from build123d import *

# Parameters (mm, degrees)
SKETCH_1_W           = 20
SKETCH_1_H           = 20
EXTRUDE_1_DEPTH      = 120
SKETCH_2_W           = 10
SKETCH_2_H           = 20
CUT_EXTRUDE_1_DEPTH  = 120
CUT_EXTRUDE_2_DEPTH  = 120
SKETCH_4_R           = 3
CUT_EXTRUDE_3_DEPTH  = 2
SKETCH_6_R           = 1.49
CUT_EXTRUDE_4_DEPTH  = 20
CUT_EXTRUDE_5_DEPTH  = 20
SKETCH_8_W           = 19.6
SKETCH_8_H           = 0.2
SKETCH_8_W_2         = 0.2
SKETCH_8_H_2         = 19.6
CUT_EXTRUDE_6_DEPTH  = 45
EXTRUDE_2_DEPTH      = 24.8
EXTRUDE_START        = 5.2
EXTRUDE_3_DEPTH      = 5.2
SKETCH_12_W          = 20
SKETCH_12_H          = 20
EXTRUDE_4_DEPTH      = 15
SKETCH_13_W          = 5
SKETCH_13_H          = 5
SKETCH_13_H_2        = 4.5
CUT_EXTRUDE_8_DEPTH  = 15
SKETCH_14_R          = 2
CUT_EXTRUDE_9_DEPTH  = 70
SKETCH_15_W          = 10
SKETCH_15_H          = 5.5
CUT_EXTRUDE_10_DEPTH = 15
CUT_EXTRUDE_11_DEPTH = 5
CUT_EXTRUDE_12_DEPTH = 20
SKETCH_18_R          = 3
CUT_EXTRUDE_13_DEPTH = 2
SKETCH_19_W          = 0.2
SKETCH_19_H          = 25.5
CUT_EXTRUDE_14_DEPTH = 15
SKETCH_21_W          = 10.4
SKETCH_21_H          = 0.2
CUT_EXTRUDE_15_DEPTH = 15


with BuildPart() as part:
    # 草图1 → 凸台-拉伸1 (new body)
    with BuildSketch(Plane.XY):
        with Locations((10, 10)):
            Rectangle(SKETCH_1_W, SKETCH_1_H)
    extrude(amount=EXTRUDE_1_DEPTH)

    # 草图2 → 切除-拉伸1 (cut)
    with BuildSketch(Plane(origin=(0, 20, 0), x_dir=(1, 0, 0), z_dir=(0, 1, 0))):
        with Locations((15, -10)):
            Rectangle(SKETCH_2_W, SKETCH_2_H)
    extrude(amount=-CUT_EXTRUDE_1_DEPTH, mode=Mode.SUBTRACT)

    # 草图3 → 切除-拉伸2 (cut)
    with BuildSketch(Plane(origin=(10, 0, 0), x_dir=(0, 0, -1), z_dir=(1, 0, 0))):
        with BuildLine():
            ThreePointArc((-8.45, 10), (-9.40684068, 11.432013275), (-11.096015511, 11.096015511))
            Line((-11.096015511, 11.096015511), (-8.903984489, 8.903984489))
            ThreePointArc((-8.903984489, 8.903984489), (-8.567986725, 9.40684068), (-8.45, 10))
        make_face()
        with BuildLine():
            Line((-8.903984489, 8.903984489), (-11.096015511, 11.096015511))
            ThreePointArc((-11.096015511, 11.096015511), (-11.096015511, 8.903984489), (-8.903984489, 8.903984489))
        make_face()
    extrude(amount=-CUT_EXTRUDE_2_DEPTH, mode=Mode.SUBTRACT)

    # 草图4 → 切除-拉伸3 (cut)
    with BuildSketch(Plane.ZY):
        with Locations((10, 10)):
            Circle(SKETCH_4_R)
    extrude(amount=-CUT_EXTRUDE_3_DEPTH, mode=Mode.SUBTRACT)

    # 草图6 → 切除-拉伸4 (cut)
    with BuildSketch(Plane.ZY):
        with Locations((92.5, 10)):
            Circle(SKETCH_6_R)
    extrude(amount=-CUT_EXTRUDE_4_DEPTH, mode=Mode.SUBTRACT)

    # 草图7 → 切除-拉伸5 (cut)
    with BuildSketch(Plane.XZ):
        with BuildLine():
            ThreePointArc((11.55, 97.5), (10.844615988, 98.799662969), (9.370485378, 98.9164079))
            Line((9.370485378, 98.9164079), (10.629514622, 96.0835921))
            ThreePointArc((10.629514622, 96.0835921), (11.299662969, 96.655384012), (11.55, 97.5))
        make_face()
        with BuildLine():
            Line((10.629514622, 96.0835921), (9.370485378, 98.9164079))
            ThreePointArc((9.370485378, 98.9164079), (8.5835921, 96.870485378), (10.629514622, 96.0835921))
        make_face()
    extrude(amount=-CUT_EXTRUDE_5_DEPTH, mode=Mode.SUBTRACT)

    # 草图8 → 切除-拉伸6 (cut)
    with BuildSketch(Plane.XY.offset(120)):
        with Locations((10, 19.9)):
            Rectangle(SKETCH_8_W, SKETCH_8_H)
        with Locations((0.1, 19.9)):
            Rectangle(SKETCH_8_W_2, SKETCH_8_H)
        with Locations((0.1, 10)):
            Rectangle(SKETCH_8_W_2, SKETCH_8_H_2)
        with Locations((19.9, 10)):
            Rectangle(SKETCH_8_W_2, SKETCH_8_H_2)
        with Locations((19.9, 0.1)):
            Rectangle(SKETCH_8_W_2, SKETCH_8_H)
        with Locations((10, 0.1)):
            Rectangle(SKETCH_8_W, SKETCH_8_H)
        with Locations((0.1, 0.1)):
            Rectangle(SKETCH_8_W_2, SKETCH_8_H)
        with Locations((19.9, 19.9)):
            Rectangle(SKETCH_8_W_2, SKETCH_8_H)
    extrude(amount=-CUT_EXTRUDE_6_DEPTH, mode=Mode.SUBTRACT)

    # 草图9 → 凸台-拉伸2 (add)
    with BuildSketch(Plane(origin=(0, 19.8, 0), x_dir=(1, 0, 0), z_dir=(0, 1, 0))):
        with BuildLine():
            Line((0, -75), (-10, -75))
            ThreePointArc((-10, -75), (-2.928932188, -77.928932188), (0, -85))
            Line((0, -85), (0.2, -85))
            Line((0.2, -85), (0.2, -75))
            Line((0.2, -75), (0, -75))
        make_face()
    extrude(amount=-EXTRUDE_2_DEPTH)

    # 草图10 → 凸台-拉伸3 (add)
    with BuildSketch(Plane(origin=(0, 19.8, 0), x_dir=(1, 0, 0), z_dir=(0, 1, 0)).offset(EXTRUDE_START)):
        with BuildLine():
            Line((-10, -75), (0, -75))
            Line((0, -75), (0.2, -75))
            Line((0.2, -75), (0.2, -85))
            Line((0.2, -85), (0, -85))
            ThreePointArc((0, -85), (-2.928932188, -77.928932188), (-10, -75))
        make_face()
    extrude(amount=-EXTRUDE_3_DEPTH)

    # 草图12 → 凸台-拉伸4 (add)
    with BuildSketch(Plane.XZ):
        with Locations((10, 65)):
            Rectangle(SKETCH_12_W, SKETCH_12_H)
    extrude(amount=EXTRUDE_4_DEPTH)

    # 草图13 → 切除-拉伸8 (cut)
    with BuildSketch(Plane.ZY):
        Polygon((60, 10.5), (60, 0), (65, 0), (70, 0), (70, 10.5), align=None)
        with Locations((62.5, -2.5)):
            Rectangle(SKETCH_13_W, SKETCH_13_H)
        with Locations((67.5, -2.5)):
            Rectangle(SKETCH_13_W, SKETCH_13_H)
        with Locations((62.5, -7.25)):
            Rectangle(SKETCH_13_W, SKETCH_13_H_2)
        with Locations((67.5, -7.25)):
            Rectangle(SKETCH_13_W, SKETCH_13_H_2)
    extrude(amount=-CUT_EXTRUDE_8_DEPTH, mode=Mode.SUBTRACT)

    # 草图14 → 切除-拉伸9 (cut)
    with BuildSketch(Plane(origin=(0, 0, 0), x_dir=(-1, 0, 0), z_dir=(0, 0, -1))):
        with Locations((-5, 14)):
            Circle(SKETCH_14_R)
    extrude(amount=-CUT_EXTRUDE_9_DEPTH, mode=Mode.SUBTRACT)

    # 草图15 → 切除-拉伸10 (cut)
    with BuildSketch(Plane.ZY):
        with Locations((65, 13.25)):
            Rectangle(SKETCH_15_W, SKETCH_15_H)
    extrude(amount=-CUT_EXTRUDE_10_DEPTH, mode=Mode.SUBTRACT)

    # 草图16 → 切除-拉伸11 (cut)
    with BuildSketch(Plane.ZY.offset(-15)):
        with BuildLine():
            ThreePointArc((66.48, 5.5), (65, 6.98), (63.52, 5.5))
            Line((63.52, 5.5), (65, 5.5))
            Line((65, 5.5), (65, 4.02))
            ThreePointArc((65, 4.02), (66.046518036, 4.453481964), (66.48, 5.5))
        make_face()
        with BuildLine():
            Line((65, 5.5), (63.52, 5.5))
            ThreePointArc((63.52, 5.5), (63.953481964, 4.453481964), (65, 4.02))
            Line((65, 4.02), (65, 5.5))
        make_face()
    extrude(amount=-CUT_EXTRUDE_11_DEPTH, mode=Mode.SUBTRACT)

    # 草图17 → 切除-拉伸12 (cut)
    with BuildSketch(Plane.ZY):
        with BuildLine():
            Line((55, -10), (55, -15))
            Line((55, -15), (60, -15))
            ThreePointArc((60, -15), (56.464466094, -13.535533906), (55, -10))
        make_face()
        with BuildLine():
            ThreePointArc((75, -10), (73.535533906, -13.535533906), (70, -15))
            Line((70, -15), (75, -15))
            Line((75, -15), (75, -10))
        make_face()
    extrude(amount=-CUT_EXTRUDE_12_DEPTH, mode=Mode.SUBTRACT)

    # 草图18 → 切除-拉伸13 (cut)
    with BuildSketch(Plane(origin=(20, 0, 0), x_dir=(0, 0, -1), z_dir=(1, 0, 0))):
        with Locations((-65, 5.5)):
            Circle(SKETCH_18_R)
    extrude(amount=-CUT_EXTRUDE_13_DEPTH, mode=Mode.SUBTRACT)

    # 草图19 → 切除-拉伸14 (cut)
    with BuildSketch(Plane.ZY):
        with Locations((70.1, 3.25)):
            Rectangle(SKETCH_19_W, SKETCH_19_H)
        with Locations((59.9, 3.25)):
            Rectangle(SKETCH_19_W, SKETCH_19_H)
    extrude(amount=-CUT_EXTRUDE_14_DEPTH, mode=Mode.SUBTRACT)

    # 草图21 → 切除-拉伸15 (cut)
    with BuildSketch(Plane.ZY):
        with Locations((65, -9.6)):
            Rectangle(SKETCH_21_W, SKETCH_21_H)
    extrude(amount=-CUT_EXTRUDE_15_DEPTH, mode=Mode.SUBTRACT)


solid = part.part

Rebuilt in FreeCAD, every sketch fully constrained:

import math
import FreeCAD as App
import Part
import Sketcher
Q = App.Units.Quantity


def add_polygon(sketch, points):
    """Adds a closed chain of lines whose ends are joined by coincident constraints."""
    first, n = sketch.GeometryCount, len(points)
    for a, b in zip(points, points[1:] + points[:1]):
        sketch.addGeometry(Part.LineSegment(App.Vector(*a, 0), App.Vector(*b, 0)), False)
    for i in range(n):
        sketch.addConstraint(Sketcher.Constraint("Coincident", first + i, 2, first + (i + 1) % n, 1))

doc = App.newDocument("Part")
body = doc.addObject("PartDesign::Body", "Body")

sketch1 = body.newObject("Sketcher::SketchObject", "Sketch")
sketch1.AttachmentSupport = (doc.getObject("XY_Plane"), [""])
sketch1.MapMode = "FlatFace"
add_polygon(sketch1, [(0, 20), (0, 0), (20, 0), (20, 20)])
sketch1.addConstraint(Sketcher.Constraint("Vertical", 0))
sketch1.addConstraint(Sketcher.Constraint("Horizontal", 1))
sketch1.addConstraint(Sketcher.Constraint("Vertical", 2))
sketch1.addConstraint(Sketcher.Constraint("Horizontal", 3))
sketch1.addConstraint(Sketcher.Constraint("Coincident", 0, 2, -1, 1))
sketch1.addConstraint(Sketcher.Constraint("Equal", 3, 0))
sketch1.addConstraint(Sketcher.Constraint("DistanceX", 1, 1, 1, 2, Q("20 mm")))
pad1 = body.newObject("PartDesign::Pad", "Pad")
pad1.Profile = sketch1
pad1.Length = 120

sketch2 = body.newObject("Sketcher::SketchObject", "Sketch001")
sketch2.AttachmentSupport = (doc.getObject("XZ_Plane"), [""])
sketch2.MapMode = "FlatFace"
sketch2.AttachmentOffset = App.Placement(App.Vector(0, 0, -20), App.Rotation())
add_polygon(sketch2, [(10, 0), (10, 20), (20, 20), (20, 0)])
sketch2.addConstraint(Sketcher.Constraint("Vertical", 0))
sketch2.addConstraint(Sketcher.Constraint("Horizontal", 1))
sketch2.addConstraint(Sketcher.Constraint("Vertical", 2))
sketch2.addConstraint(Sketcher.Constraint("Horizontal", 3))
sketch2.addConstraint(Sketcher.Constraint("PointOnObject", 2, 2, -1))
sketch2.addConstraint(Sketcher.Constraint("DistanceX", 1, 1, 1, 2, Q("10 mm")))
sketch2.addConstraint(Sketcher.Constraint("DistanceY", 0, 1, 0, 2, Q("20 mm")))
sketch2.addConstraint(Sketcher.Constraint("DistanceX", -1, 1, 0, 2, Q("10 mm")))
pocket1 = body.newObject("PartDesign::Pocket", "Pocket")
pocket1.Profile = sketch2
pocket1.Length = 120
pocket1.Reversed = True

sketch3 = body.newObject("Sketcher::SketchObject", "Sketch002")
sketch3.AttachmentSupport = (doc.getObject("YZ_Plane"), [""])
sketch3.MapMode = "FlatFace"
sketch3.AttachmentOffset = App.Placement(App.Vector(0, 0, 10), App.Rotation())
sketch3.addGeometry(Part.ArcOfCircle(Part.Circle(App.Vector(10, 10, 0), App.Vector(0, 0, 1), 1.6), math.radians(-90), math.radians(45)), False)
sketch3.addGeometry(Part.ArcOfCircle(Part.Circle(App.Vector(10, 10, 0), App.Vector(0, 0, 1), 1.6), math.radians(45), math.radians(225)), False)
sketch3.addGeometry(Part.ArcOfCircle(Part.Circle(App.Vector(10, 10, 0), App.Vector(0, 0, 1), 1.6), math.radians(-135), math.radians(-90)), False)
sketch3.addConstraint(Sketcher.Constraint("Tangent", 0, 2, 1, 1))
sketch3.addConstraint(Sketcher.Constraint("Tangent", 1, 2, 2, 1))
sketch3.addConstraint(Sketcher.Constraint("Tangent", 2, 2, 0, 1))
sketch3.addConstraint(Sketcher.Constraint("Vertical", 1, 3, 2, 2))
sketch3.addConstraint(Sketcher.Constraint("Radius", 0, Q("1.55 mm")))
sketch3.addConstraint(Sketcher.Constraint("DistanceX", -1, 1, 0, 3, Q("10 mm")))
sketch3.addConstraint(Sketcher.Constraint("DistanceY", -1, 1, 0, 3, Q("10 mm")))
sketch3.addConstraint(Sketcher.Constraint("DistanceX", 1, 2, 0, 2, Q("2.192031 mm")))
sketch3.addConstraint(Sketcher.Constraint("DistanceX", -1, 1, 0, 2, Q("11.096016 mm")))
pocket2 = body.newObject("PartDesign::Pocket", "Pocket001")
pocket2.Profile = sketch3
pocket2.Length = 120

sketch4 = body.newObject("Sketcher::SketchObject", "Sketch003")
sketch4.AttachmentSupport = (doc.getObject("YZ_Plane"), [""])
sketch4.MapMode = "FlatFace"
sketch4.addGeometry(Part.Circle(App.Vector(10, 10, 0), App.Vector(0, 0, 1), 3), False)
sketch4.addConstraint(Sketcher.Constraint("Diameter", 0, Q("6 mm")))
sketch4.addConstraint(Sketcher.Constraint("DistanceX", -1, 1, 0, 3, Q("10 mm")))
sketch4.addConstraint(Sketcher.Constraint("DistanceY", -1, 1, 0, 3, Q("10 mm")))
pocket3 = body.newObject("PartDesign::Pocket", "Pocket002")
pocket3.Profile = sketch4
pocket3.Length = 2
pocket3.Reversed = True

sketch5 = body.newObject("Sketcher::SketchObject", "Sketch004")
sketch5.AttachmentSupport = (doc.getObject("YZ_Plane"), [""])
sketch5.MapMode = "FlatFace"
sketch5.addGeometry(Part.Circle(App.Vector(10, 92.5, 0), App.Vector(0, 0, 1), 1.5), False)
sketch5.addConstraint(Sketcher.Constraint("Diameter", 0, Q("2.98 mm")))
sketch5.addConstraint(Sketcher.Constraint("DistanceX", -1, 1, 0, 3, Q("10 mm")))
sketch5.addConstraint(Sketcher.Constraint("DistanceY", -1, 1, 0, 3, Q("92.5 mm")))
pocket4 = body.newObject("PartDesign::Pocket", "Pocket003")
pocket4.Profile = sketch5
pocket4.Length = 20
pocket4.Reversed = True

sketch6 = body.newObject("Sketcher::SketchObject", "Sketch005")
sketch6.AttachmentSupport = (doc.getObject("XZ_Plane"), [""])
sketch6.MapMode = "FlatFace"
sketch6.addGeometry(Part.ArcOfCircle(Part.Circle(App.Vector(10, 97.5, 0), App.Vector(0, 0, 1), 1.5), math.radians(0), math.radians(114)), False)
sketch6.addGeometry(Part.ArcOfCircle(Part.Circle(App.Vector(10, 97.5, 0), App.Vector(0, 0, 1), 1.6), math.radians(114), math.radians(294)), False)
sketch6.addGeometry(Part.ArcOfCircle(Part.Circle(App.Vector(10, 97.5, 0), App.Vector(0, 0, 1), 1.5), math.radians(-66), math.radians(0)), False)
sketch6.addConstraint(Sketcher.Constraint("Tangent", 0, 2, 1, 1))
sketch6.addConstraint(Sketcher.Constraint("Tangent", 1, 2, 2, 1))
sketch6.addConstraint(Sketcher.Constraint("Tangent", 2, 2, 0, 1))
sketch6.addConstraint(Sketcher.Constraint("Horizontal", 1, 3, 2, 2))
sketch6.addConstraint(Sketcher.Constraint("Radius", 0, Q("1.55 mm")))
sketch6.addConstraint(Sketcher.Constraint("DistanceX", -1, 1, 0, 3, Q("10 mm")))
sketch6.addConstraint(Sketcher.Constraint("DistanceY", -1, 1, 0, 3, Q("97.5 mm")))
sketch6.addConstraint(Sketcher.Constraint("DistanceX", 0, 2, 1, 2, Q("1.259029 mm")))
sketch6.addConstraint(Sketcher.Constraint("DistanceX", -1, 1, 0, 2, Q("9.370485 mm")))
pocket5 = body.newObject("PartDesign::Pocket", "Pocket004")
pocket5.Profile = sketch6
pocket5.Length = 20

sketch7 = body.newObject("Sketcher::SketchObject", "Sketch006")
sketch7.AttachmentSupport = (doc.getObject("XY_Plane"), [""])
sketch7.MapMode = "FlatFace"
sketch7.AttachmentOffset = App.Placement(App.Vector(0, 0, 120), App.Rotation())
add_polygon(sketch7, [(20, 0), (20, 20), (0, 20), (0, 0)])
add_polygon(sketch7, [(0, 20), (20, 20), (20, 0), (0, 0)])
sketch7.addConstraint(Sketcher.Constraint("Vertical", 0))
sketch7.addConstraint(Sketcher.Constraint("Horizontal", 1))
sketch7.addConstraint(Sketcher.Constraint("Vertical", 2))
sketch7.addConstraint(Sketcher.Constraint("Horizontal", 3))
sketch7.addConstraint(Sketcher.Constraint("Horizontal", 4))
sketch7.addConstraint(Sketcher.Constraint("Vertical", 5))
sketch7.addConstraint(Sketcher.Constraint("Horizontal", 6))
sketch7.addConstraint(Sketcher.Constraint("Vertical", 7))
sketch7.addConstraint(Sketcher.Constraint("Coincident", 2, 2, -1, 1))
sketch7.addConstraint(Sketcher.Constraint("Equal", 3, 0))
sketch7.addConstraint(Sketcher.Constraint("Equal", 6, 5))
sketch7.addConstraint(Sketcher.Constraint("DistanceX", 1, 2, 1, 1, Q("20 mm")))
sketch7.addConstraint(Sketcher.Constraint("DistanceX", 4, 1, 4, 2, Q("19.6 mm")))
sketch7.addConstraint(Sketcher.Constraint("DistanceX", -1, 1, 4, 2, Q("19.8 mm")))
sketch7.addConstraint(Sketcher.Constraint("DistanceY", -1, 1, 4, 2, Q("19.8 mm")))
pocket6 = body.newObject("PartDesign::Pocket", "Pocket005")
pocket6.Profile = sketch7
pocket6.Length = 45

sketch8 = body.newObject("Sketcher::SketchObject", "Sketch007")
sketch8.AttachmentSupport = (doc.getObject("XZ_Plane"), [""])
sketch8.MapMode = "FlatFace"
sketch8.AttachmentOffset = App.Placement(App.Vector(0, 0, -19.8), App.Rotation())
sketch8.addGeometry(Part.ArcOfCircle(Part.Circle(App.Vector(-10, 85, 0), App.Vector(0, 0, 1), 10), math.radians(-90), math.radians(0)), False)
sketch8.addGeometry(Part.LineSegment(App.Vector(0, 85, 0), App.Vector(0.2, 85, 0)), False)
sketch8.addGeometry(Part.LineSegment(App.Vector(0.2, 85, 0), App.Vector(0.2, 75, 0)), False)
sketch8.addGeometry(Part.LineSegment(App.Vector(0.2, 75, 0), App.Vector(-10, 75, 0)), False)
sketch8.addConstraint(Sketcher.Constraint("Coincident", 0, 2, 1, 1))
sketch8.addConstraint(Sketcher.Constraint("Coincident", 1, 2, 2, 1))
sketch8.addConstraint(Sketcher.Constraint("Coincident", 2, 2, 3, 1))
sketch8.addConstraint(Sketcher.Constraint("Tangent", 3, 2, 0, 1))
sketch8.addConstraint(Sketcher.Constraint("Horizontal", 1))
sketch8.addConstraint(Sketcher.Constraint("Vertical", 2))
sketch8.addConstraint(Sketcher.Constraint("Horizontal", 3))
sketch8.addConstraint(Sketcher.Constraint("PointOnObject", 0, 2, -2))
sketch8.addConstraint(Sketcher.Constraint("Radius", 0, Q("10 mm")))
sketch8.addConstraint(Sketcher.Constraint("DistanceY", 2, 2, 2, 1, Q("10 mm")))
sketch8.addConstraint(Sketcher.Constraint("DistanceX", 1, 1, 1, 2, Q("0.2 mm")))
sketch8.addConstraint(Sketcher.Constraint("DistanceY", -1, 1, 0, 3, Q("85 mm")))
pad2 = body.newObject("PartDesign::Pad", "Pad001")
pad2.Profile = sketch8
pad2.Length = 24.8

sketch9 = body.newObject("Sketcher::SketchObject", "Sketch008")
sketch9.AttachmentSupport = (doc.getObject("XZ_Plane"), [""])
sketch9.MapMode = "FlatFace"
sketch9.AttachmentOffset = App.Placement(App.Vector(0, 0, -25), App.Rotation())
sketch9.addGeometry(Part.LineSegment(App.Vector(0.2, 75, 0), App.Vector(-10, 75, 0)), False)
sketch9.addGeometry(Part.ArcOfCircle(Part.Circle(App.Vector(-10, 85, 0), App.Vector(0, 0, 1), 10), math.radians(-90), math.radians(0)), False)
sketch9.addGeometry(Part.LineSegment(App.Vector(0, 85, 0), App.Vector(0.2, 85, 0)), False)
sketch9.addGeometry(Part.LineSegment(App.Vector(0.2, 85, 0), App.Vector(0.2, 75, 0)), False)
sketch9.addConstraint(Sketcher.Constraint("Tangent", 0, 2, 1, 1))
sketch9.addConstraint(Sketcher.Constraint("Coincident", 1, 2, 2, 1))
sketch9.addConstraint(Sketcher.Constraint("Coincident", 2, 2, 3, 1))
sketch9.addConstraint(Sketcher.Constraint("Coincident", 3, 2, 0, 1))
sketch9.addConstraint(Sketcher.Constraint("Horizontal", 0))
sketch9.addConstraint(Sketcher.Constraint("Horizontal", 2))
sketch9.addConstraint(Sketcher.Constraint("Vertical", 3))
sketch9.addConstraint(Sketcher.Constraint("PointOnObject", 1, 2, -2))
sketch9.addConstraint(Sketcher.Constraint("Radius", 1, Q("10 mm")))
sketch9.addConstraint(Sketcher.Constraint("DistanceY", 3, 2, 3, 1, Q("10 mm")))
sketch9.addConstraint(Sketcher.Constraint("DistanceX", 0, 2, 0, 1, Q("10.2 mm")))
sketch9.addConstraint(Sketcher.Constraint("DistanceY", -1, 1, 1, 3, Q("85 mm")))
pad3 = body.newObject("PartDesign::Pad", "Pad002")
pad3.Profile = sketch9
pad3.Length = 5.2

sketch10 = body.newObject("Sketcher::SketchObject", "Sketch009")
sketch10.AttachmentSupport = (doc.getObject("XZ_Plane"), [""])
sketch10.MapMode = "FlatFace"
add_polygon(sketch10, [(0, 75), (0, 55), (20, 55), (20, 75)])
sketch10.addConstraint(Sketcher.Constraint("Vertical", 0))
sketch10.addConstraint(Sketcher.Constraint("Horizontal", 1))
sketch10.addConstraint(Sketcher.Constraint("Vertical", 2))
sketch10.addConstraint(Sketcher.Constraint("Horizontal", 3))
sketch10.addConstraint(Sketcher.Constraint("PointOnObject", 0, 2, -2))
sketch10.addConstraint(Sketcher.Constraint("Equal", 3, 0))
sketch10.addConstraint(Sketcher.Constraint("DistanceX", 1, 1, 1, 2, Q("20 mm")))
sketch10.addConstraint(Sketcher.Constraint("DistanceY", -1, 1, 0, 2, Q("55 mm")))
pad4 = body.newObject("PartDesign::Pad", "Pad003")
pad4.Profile = sketch10
pad4.Length = 15

sketch11 = body.newObject("Sketcher::SketchObject", "Sketch010")
sketch11.AttachmentSupport = (doc.getObject("YZ_Plane"), [""])
sketch11.MapMode = "FlatFace"
add_polygon(sketch11, [(10, 60), (-10, 60), (-10, 70), (10, 70)])
sketch11.addConstraint(Sketcher.Constraint("Horizontal", 0))
sketch11.addConstraint(Sketcher.Constraint("Vertical", 1))
sketch11.addConstraint(Sketcher.Constraint("Horizontal", 2))
sketch11.addConstraint(Sketcher.Constraint("Vertical", 3))
sketch11.addConstraint(Sketcher.Constraint("DistanceX", 0, 2, 0, 1, Q("20 mm")))
sketch11.addConstraint(Sketcher.Constraint("DistanceY", 1, 1, 1, 2, Q("10 mm")))
sketch11.addConstraint(Sketcher.Constraint("DistanceY", -1, 1, 0, 2, Q("60 mm")))
sketch11.addConstraint(Sketcher.Constraint("DistanceX", 0, 2, -1, 1, Q("9.5 mm")))
pocket7 = body.newObject("PartDesign::Pocket", "Pocket006")
pocket7.Profile = sketch11
pocket7.Length = 15
pocket7.Reversed = True

sketch12 = body.newObject("Sketcher::SketchObject", "Sketch011")
sketch12.AttachmentSupport = (doc.getObject("XY_Plane"), [""])
sketch12.MapMode = "FlatFace"
sketch12.addGeometry(Part.Circle(App.Vector(5, 14, 0), App.Vector(0, 0, 1), 2), False)
sketch12.addConstraint(Sketcher.Constraint("Diameter", 0, Q("4 mm")))
sketch12.addConstraint(Sketcher.Constraint("DistanceX", -1, 1, 0, 3, Q("5 mm")))
sketch12.addConstraint(Sketcher.Constraint("DistanceY", -1, 1, 0, 3, Q("14 mm")))
pocket8 = body.newObject("PartDesign::Pocket", "Pocket007")
pocket8.Profile = sketch12
pocket8.Length = 70
pocket8.Reversed = True

sketch13 = body.newObject("Sketcher::SketchObject", "Sketch012")
sketch13.AttachmentSupport = (doc.getObject("YZ_Plane"), [""])
sketch13.MapMode = "FlatFace"
add_polygon(sketch13, [(16, 60), (10, 60), (10, 70), (16, 70)])
sketch13.addConstraint(Sketcher.Constraint("Horizontal", 0))
sketch13.addConstraint(Sketcher.Constraint("Vertical", 1))
sketch13.addConstraint(Sketcher.Constraint("Horizontal", 2))
sketch13.addConstraint(Sketcher.Constraint("Vertical", 3))
sketch13.addConstraint(Sketcher.Constraint("DistanceY", 1, 1, 1, 2, Q("10 mm")))
sketch13.addConstraint(Sketcher.Constraint("DistanceX", 0, 2, 0, 1, Q("5.5 mm")))
sketch13.addConstraint(Sketcher.Constraint("DistanceY", -1, 1, 0, 2, Q("60 mm")))
sketch13.addConstraint(Sketcher.Constraint("DistanceX", -1, 1, 2, 2, Q("16 mm")))
pocket9 = body.newObject("PartDesign::Pocket", "Pocket008")
pocket9.Profile = sketch13
pocket9.Length = 15
pocket9.Reversed = True

sketch14 = body.newObject("Sketcher::SketchObject", "Sketch013")
sketch14.AttachmentSupport = (doc.getObject("YZ_Plane"), [""])
sketch14.MapMode = "FlatFace"
sketch14.AttachmentOffset = App.Placement(App.Vector(0, 0, 15), App.Rotation())
sketch14.addGeometry(Part.ArcOfCircle(Part.Circle(App.Vector(5.5, 65, 0), App.Vector(0, 0, 1), 1.5), math.radians(-90), math.radians(90)), False)
sketch14.addGeometry(Part.ArcOfCircle(Part.Circle(App.Vector(5.5, 65, 0), App.Vector(0, 0, 1), 1.5), math.radians(-180), math.radians(-90)), False)
sketch14.addGeometry(Part.ArcOfCircle(Part.Circle(App.Vector(5.5, 65, 0), App.Vector(0, 0, 1), 1.5), math.radians(90), math.radians(180)), False)
sketch14.addConstraint(Sketcher.Constraint("Tangent", 0, 1, 1, 2))
sketch14.addConstraint(Sketcher.Constraint("Tangent", 1, 1, 2, 2))
sketch14.addConstraint(Sketcher.Constraint("Tangent", 2, 1, 0, 2))
sketch14.addConstraint(Sketcher.Constraint("Horizontal", 2, 3, 1, 1))
sketch14.addConstraint(Sketcher.Constraint("Vertical", 2, 3, 0, 1))
sketch14.addConstraint(Sketcher.Constraint("Vertical", 0, 1, 2, 1))
sketch14.addConstraint(Sketcher.Constraint("Radius", 0, Q("1.48 mm")))
sketch14.addConstraint(Sketcher.Constraint("DistanceY", -1, 1, 0, 3, Q("65 mm")))
sketch14.addConstraint(Sketcher.Constraint("DistanceX", -1, 1, 0, 3, Q("5.5 mm")))
pocket10 = body.newObject("PartDesign::Pocket", "Pocket009")
pocket10.Profile = sketch14
pocket10.Length = 5
pocket10.Reversed = True

sketch15 = body.newObject("Sketcher::SketchObject", "Sketch014")
sketch15.AttachmentSupport = (doc.getObject("YZ_Plane"), [""])
sketch15.MapMode = "FlatFace"
sketch15.addGeometry(Part.LineSegment(App.Vector(-10, 55, 0), App.Vector(-15, 55, 0)), False)
sketch15.addGeometry(Part.LineSegment(App.Vector(-15, 55, 0), App.Vector(-15, 60, 0)), False)
sketch15.addGeometry(Part.ArcOfCircle(Part.Circle(App.Vector(-10, 60, 0), App.Vector(0, 0, 1), 5), math.radians(180), math.radians(270)), False)
sketch15.addGeometry(Part.ArcOfCircle(Part.Circle(App.Vector(-10, 70, 0), App.Vector(0, 0, 1), 5), math.radians(90), math.radians(180)), False)
sketch15.addGeometry(Part.LineSegment(App.Vector(-15, 70, 0), App.Vector(-15, 75, 0)), False)
sketch15.addGeometry(Part.LineSegment(App.Vector(-15, 75, 0), App.Vector(-10, 75, 0)), False)
sketch15.addConstraint(Sketcher.Constraint("Coincident", 0, 2, 1, 1))
sketch15.addConstraint(Sketcher.Constraint("Tangent", 1, 2, 2, 1))
sketch15.addConstraint(Sketcher.Constraint("Tangent", 2, 2, 0, 1))
sketch15.addConstraint(Sketcher.Constraint("Tangent", 3, 2, 4, 1))
sketch15.addConstraint(Sketcher.Constraint("Coincident", 4, 2, 5, 1))
sketch15.addConstraint(Sketcher.Constraint("Tangent", 5, 2, 3, 1))
sketch15.addConstraint(Sketcher.Constraint("Horizontal", 0))
sketch15.addConstraint(Sketcher.Constraint("Vertical", 1))
sketch15.addConstraint(Sketcher.Constraint("Vertical", 4))
sketch15.addConstraint(Sketcher.Constraint("Horizontal", 5))
sketch15.addConstraint(Sketcher.Constraint("Equal", 2, 3))
sketch15.addConstraint(Sketcher.Constraint("Vertical", 2, 3, 3, 3))
sketch15.addConstraint(Sketcher.Constraint("Radius", 2, Q("5 mm")))
sketch15.addConstraint(Sketcher.Constraint("DistanceX", 2, 3, -1, 1, Q("10 mm")))
sketch15.addConstraint(Sketcher.Constraint("DistanceY", -1, 1, 2, 3, Q("60 mm")))
sketch15.addConstraint(Sketcher.Constraint("DistanceY", -1, 1, 3, 3, Q("70 mm")))
pocket11 = body.newObject("PartDesign::Pocket", "Pocket010")
pocket11.Profile = sketch15
pocket11.Length = 20
pocket11.Reversed = True

sketch16 = body.newObject("Sketcher::SketchObject", "Sketch015")
sketch16.AttachmentSupport = (doc.getObject("YZ_Plane"), [""])
sketch16.MapMode = "FlatFace"
sketch16.AttachmentOffset = App.Placement(App.Vector(0, 0, 20), App.Rotation())
sketch16.addGeometry(Part.Circle(App.Vector(5.5, 65, 0), App.Vector(0, 0, 1), 3), False)
sketch16.addConstraint(Sketcher.Constraint("Diameter", 0, Q("6 mm")))
sketch16.addConstraint(Sketcher.Constraint("DistanceY", -1, 1, 0, 3, Q("65 mm")))
sketch16.addConstraint(Sketcher.Constraint("DistanceX", -1, 1, 0, 3, Q("5.5 mm")))
pocket12 = body.newObject("PartDesign::Pocket", "Pocket011")
pocket12.Profile = sketch16
pocket12.Length = 2

sketch17 = body.newObject("Sketcher::SketchObject", "Sketch016")
sketch17.AttachmentSupport = (doc.getObject("YZ_Plane"), [""])
sketch17.MapMode = "FlatFace"
add_polygon(sketch17, [(16, 70), (-9.5, 70), (-9.5, 70.2), (16, 70.2)])
add_polygon(sketch17, [(16, 59.8), (-9.5, 59.8), (-9.5, 60), (16, 60)])
sketch17.addConstraint(Sketcher.Constraint("Horizontal", 0))
sketch17.addConstraint(Sketcher.Constraint("Vertical", 1))
sketch17.addConstraint(Sketcher.Constraint("Horizontal", 2))
sketch17.addConstraint(Sketcher.Constraint("Vertical", 3))
sketch17.addConstraint(Sketcher.Constraint("Horizontal", 4))
sketch17.addConstraint(Sketcher.Constraint("Vertical", 5))
sketch17.addConstraint(Sketcher.Constraint("Horizontal", 6))
sketch17.addConstraint(Sketcher.Constraint("Vertical", 7))
sketch17.addConstraint(Sketcher.Constraint("Vertical", 1, 2, 4, 2))
sketch17.addConstraint(Sketcher.Constraint("Vertical", 3, 2, 6, 2))
sketch17.addConstraint(Sketcher.Constraint("Equal", 3, 5))
sketch17.addConstraint(Sketcher.Constraint("DistanceX", 0, 2, 0, 1, Q("25.5 mm")))
sketch17.addConstraint(Sketcher.Constraint("DistanceY", 1, 1, 1, 2, Q("0.2 mm")))
sketch17.addConstraint(Sketcher.Constraint("DistanceY", -1, 1, 0, 2, Q("70 mm")))
sketch17.addConstraint(Sketcher.Constraint("DistanceX", -1, 1, 2, 2, Q("16 mm")))
sketch17.addConstraint(Sketcher.Constraint("DistanceY", -1, 1, 5, 2, Q("60 mm")))
pocket13 = body.newObject("PartDesign::Pocket", "Pocket012")
pocket13.Profile = sketch17
pocket13.Length = 15
pocket13.Reversed = True

sketch18 = body.newObject("Sketcher::SketchObject", "Sketch017")
sketch18.AttachmentSupport = (doc.getObject("YZ_Plane"), [""])
sketch18.MapMode = "FlatFace"
add_polygon(sketch18, [(-9.5, 59.8), (-9.7, 59.8), (-9.7, 70.2), (-9.5, 70.2)])
sketch18.addConstraint(Sketcher.Constraint("Horizontal", 0))
sketch18.addConstraint(Sketcher.Constraint("Vertical", 1))
sketch18.addConstraint(Sketcher.Constraint("Horizontal", 2))
sketch18.addConstraint(Sketcher.Constraint("Vertical", 3))
sketch18.addConstraint(Sketcher.Constraint("DistanceX", 0, 2, 0, 1, Q("0.2 mm")))
sketch18.addConstraint(Sketcher.Constraint("DistanceY", 1, 1, 1, 2, Q("10.4 mm")))
sketch18.addConstraint(Sketcher.Constraint("DistanceX", 0, 2, -1, 1, Q("9.7 mm")))
sketch18.addConstraint(Sketcher.Constraint("DistanceY", -1, 1, 0, 2, Q("59.8 mm")))
pocket14 = body.newObject("PartDesign::Pocket", "Pocket013")
pocket14.Profile = sketch18
pocket14.Length = 15
pocket14.Reversed = True

doc.recompute()
